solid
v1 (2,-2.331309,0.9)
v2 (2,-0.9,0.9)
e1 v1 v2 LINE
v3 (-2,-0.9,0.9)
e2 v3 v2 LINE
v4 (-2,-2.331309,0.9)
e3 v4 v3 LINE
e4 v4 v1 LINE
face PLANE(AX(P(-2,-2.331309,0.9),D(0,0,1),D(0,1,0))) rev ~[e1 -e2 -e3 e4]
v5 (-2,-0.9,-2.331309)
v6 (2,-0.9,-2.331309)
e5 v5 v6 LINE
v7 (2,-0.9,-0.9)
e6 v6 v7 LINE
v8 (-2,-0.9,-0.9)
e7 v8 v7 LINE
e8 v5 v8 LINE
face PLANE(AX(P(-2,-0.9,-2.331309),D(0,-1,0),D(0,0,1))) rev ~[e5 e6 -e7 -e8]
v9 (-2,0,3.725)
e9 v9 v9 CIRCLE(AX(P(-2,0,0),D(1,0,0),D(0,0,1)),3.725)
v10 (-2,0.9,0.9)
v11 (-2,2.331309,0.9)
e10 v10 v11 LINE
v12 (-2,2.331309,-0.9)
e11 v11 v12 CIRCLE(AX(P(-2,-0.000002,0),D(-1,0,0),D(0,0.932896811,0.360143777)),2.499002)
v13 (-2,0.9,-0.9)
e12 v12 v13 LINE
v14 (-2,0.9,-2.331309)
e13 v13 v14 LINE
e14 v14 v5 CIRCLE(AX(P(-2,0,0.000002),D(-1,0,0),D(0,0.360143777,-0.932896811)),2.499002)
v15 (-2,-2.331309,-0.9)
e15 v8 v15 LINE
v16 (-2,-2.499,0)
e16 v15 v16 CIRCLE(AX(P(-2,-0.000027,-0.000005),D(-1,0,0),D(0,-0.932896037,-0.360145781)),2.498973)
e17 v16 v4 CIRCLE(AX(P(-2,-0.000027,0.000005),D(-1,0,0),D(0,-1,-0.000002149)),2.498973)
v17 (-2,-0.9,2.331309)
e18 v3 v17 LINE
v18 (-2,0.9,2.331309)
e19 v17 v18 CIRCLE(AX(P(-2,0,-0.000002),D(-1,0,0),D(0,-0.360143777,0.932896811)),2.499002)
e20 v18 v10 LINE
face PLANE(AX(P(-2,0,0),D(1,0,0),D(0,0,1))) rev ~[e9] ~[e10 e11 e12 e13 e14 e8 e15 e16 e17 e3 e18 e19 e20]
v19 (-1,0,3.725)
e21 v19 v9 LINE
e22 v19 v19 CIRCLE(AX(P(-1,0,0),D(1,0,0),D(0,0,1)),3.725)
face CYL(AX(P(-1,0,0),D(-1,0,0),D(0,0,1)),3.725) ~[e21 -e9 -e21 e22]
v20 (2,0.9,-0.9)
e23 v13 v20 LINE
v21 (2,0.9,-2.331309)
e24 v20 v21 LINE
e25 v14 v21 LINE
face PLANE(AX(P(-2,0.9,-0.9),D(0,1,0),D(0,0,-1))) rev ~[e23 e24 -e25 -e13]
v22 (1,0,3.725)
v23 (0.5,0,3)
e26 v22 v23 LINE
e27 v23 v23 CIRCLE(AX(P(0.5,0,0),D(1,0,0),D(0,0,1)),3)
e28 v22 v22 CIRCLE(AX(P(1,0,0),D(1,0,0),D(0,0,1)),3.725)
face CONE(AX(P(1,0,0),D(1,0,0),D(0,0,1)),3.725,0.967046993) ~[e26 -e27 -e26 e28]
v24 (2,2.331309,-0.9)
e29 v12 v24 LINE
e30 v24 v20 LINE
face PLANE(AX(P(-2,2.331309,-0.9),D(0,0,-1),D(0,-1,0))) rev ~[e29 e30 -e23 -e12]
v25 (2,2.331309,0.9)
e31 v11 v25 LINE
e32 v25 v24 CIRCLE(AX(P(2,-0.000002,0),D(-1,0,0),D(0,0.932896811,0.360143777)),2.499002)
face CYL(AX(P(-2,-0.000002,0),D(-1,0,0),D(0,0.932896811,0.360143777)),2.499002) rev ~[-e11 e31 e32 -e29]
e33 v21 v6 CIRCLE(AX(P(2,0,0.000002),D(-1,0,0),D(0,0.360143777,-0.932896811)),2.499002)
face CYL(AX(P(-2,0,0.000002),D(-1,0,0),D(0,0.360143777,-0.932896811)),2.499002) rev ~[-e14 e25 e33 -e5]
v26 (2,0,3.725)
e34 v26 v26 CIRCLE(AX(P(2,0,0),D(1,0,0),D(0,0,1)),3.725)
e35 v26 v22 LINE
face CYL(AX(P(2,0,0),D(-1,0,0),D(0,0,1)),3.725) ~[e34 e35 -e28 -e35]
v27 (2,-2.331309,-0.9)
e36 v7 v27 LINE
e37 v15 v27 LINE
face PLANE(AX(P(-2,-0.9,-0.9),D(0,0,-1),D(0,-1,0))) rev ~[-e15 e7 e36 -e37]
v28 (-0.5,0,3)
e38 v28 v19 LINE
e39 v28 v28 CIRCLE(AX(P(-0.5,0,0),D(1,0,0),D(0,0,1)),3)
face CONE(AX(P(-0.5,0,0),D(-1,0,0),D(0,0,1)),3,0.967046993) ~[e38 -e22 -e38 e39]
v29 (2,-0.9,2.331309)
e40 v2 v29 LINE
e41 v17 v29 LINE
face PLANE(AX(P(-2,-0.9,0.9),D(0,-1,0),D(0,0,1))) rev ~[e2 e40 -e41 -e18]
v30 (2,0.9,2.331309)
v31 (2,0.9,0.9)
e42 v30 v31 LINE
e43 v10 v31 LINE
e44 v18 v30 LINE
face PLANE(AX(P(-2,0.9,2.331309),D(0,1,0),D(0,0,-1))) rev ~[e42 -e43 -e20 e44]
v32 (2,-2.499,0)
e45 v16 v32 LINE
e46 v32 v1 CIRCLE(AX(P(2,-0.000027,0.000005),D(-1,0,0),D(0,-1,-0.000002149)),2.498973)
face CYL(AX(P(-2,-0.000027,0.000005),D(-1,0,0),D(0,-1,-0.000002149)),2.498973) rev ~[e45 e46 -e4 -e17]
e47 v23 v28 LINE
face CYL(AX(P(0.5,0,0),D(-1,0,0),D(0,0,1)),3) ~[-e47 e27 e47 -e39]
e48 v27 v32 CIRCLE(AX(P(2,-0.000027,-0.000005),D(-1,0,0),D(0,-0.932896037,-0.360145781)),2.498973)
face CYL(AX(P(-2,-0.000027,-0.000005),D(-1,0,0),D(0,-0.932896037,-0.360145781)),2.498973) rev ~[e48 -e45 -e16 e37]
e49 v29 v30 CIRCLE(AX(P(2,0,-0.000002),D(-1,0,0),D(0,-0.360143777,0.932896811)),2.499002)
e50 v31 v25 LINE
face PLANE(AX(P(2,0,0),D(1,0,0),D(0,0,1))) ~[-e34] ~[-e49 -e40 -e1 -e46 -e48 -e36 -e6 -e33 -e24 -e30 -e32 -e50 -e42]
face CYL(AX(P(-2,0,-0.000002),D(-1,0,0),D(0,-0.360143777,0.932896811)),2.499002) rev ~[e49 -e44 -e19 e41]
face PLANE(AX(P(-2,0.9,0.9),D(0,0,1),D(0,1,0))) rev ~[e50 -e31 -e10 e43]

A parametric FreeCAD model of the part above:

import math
import FreeCAD as App
import Part
import Sketcher

doc = App.newDocument("Part")
params = doc.addObject("Spreadsheet::Sheet", "Params")
for row, (alias, value) in enumerate([
    ("sketch1_width", "1 mm"),
    ("sketch1_width2", "4 mm"),
    ("revolution_angle", "360 deg"),
], start=1):
    params.set(f"A{row}", alias)
    params.set(f"B{row}", "=" + value)
    params.setAlias(f"B{row}", alias)

body = doc.addObject("PartDesign::Body", "Body")

# Sketch on XZ plane
sketch1 = body.newObject("Sketcher::SketchObject", "Sketch")
sketch1.AttachmentSupport = (doc.getObject("XZ_Plane"), [""])
sketch1.MapMode = "FlatFace"
sketch1.addGeometry(Part.LineSegment(App.Vector(2, 0, 0), App.Vector(2, 3.725, 0)), False)
sketch1.addGeometry(Part.LineSegment(App.Vector(2, 3.725, 0), App.Vector(1, 3.725, 0)), False)
sketch1.addGeometry(Part.LineSegment(App.Vector(1, 3.725, 0), App.Vector(0.5, 3, 0)), False)
sketch1.addGeometry(Part.LineSegment(App.Vector(0.5, 3, 0), App.Vector(-0.5, 3, 0)), False)
sketch1.addGeometry(Part.LineSegment(App.Vector(-0.5, 3, 0), App.Vector(-1, 3.725, 0)), False)
sketch1.addGeometry(Part.LineSegment(App.Vector(-1, 3.725, 0), App.Vector(-2, 3.725, 0)), False)
sketch1.addGeometry(Part.LineSegment(App.Vector(-2, 3.725, 0), App.Vector(-2, 0, 0)), False)
sketch1.addGeometry(Part.LineSegment(App.Vector(-2, 0, 0), App.Vector(2, 0, 0)), False)
sketch1.addConstraint(Sketcher.Constraint("Coincident", 0, 2, 1, 1))
sketch1.addConstraint(Sketcher.Constraint("Coincident", 1, 2, 2, 1))
sketch1.addConstraint(Sketcher.Constraint("Coincident", 2, 2, 3, 1))
sketch1.addConstraint(Sketcher.Constraint("Coincident", 3, 2, 4, 1))
sketch1.addConstraint(Sketcher.Constraint("Coincident", 4, 2, 5, 1))
sketch1.addConstraint(Sketcher.Constraint("Coincident", 5, 2, 6, 1))
sketch1.addConstraint(Sketcher.Constraint("Coincident", 6, 2, 7, 1))
sketch1.addConstraint(Sketcher.Constraint("Coincident", 7, 2, 0, 1))
sketch1.addConstraint(Sketcher.Constraint("Vertical", 0))
sketch1.addConstraint(Sketcher.Constraint("Horizontal", 1))
sketch1.addConstraint(Sketcher.Constraint("Horizontal", 3))
sketch1.addConstraint(Sketcher.Constraint("Horizontal", 5))
sketch1.addConstraint(Sketcher.Constraint("Vertical", 6))
sketch1.addConstraint(Sketcher.Constraint("Horizontal", 7))
sketch1.addConstraint(Sketcher.Constraint("Symmetric", 6, 2, 7, 2, -1, 1))
sketch1.addConstraint(Sketcher.Constraint("Symmetric", 1, 2, 4, 2, -2))
sketch1.addConstraint(Sketcher.Constraint("Equal", 1, 3))
sketch1.addConstraint(Sketcher.Constraint("Equal", 2, 4))
sketch1.addConstraint(Sketcher.Constraint("DistanceX", 1, 2, 1, 1, 1.0))
sketch1.addConstraint(Sketcher.Constraint("DistanceX", 7, 1, 7, 2, 4.0))
sketch1.addConstraint(Sketcher.Constraint("DistanceY", -1, 1, 2, 2, 3.0))
sketch1.addConstraint(Sketcher.Constraint("DistanceY", 0, 1, 0, 2, 3.725))
sketch1.setExpression("Constraints[18]", "Params.sketch1_width")
sketch1.setExpression("Constraints[19]", "Params.sketch1_width2")
revolution = body.newObject("PartDesign::Revolution", "Revolution")
revolution.Profile = sketch1
revolution.ReferenceAxis = (sketch1, ["H_Axis"])
revolution.setExpression("Angle", "Params.revolution_angle")

# Sketch on YZ plane
sketch2 = body.newObject("Sketcher::SketchObject", "Sketch001")
sketch2.AttachmentSupport = (doc.getObject("YZ_Plane"), [""])
sketch2.MapMode = "FlatFace"
sketch2.AttachmentOffset = App.Placement(App.Vector(0, 0, -2), App.Rotation())
sketch2.addGeometry(Part.ArcOfCircle(Part.Circle(App.Vector(-0.000027, -0.000005, 0), App.Vector(0, 0, 1), 2.498973), math.radians(179.999877), math.radians(201.109149)), False)
sketch2.addGeometry(Part.ArcOfCircle(Part.Circle(App.Vector(-0.000027, 0.000005, 0), App.Vector(0, 0, 1), 2.498973), math.radians(158.890851), math.radians(180.000123)), False)
sketch2.addGeometry(Part.LineSegment(App.Vector(-2.331309, 0.9, 0), App.Vector(-0.9, 0.9, 0)), False)
sketch2.addGeometry(Part.LineSegment(App.Vector(-0.9, 0.9, 0), App.Vector(-0.9, 2.331309, 0)), False)
sketch2.addGeometry(Part.ArcOfCircle(Part.Circle(App.Vector(0, -0.000002, 0), App.Vector(0, 0, 1), 2.499002), math.radians(68.890974), math.radians(111.109026)), False)
sketch2.addGeometry(Part.LineSegment(App.Vector(0.9, 2.331309, 0), App.Vector(0.9, 0.9, 0)), False)
sketch2.addGeometry(Part.LineSegment(App.Vector(0.9, 0.9, 0), App.Vector(2.331309, 0.9, 0)), False)
sketch2.addGeometry(Part.ArcOfCircle(Part.Circle(App.Vector(-0.000002, 0, 0), App.Vector(0, 0, 1), 2.499002), math.radians(-21.109026), math.radians(21.109026)), False)
sketch2.addGeometry(Part.LineSegment(App.Vector(2.331309, -0.9, 0), App.Vector(0.9, -0.9, 0)), False)
sketch2.addGeometry(Part.LineSegment(App.Vector(0.9, -0.9, 0), App.Vector(0.9, -2.331309, 0)), False)
sketch2.addGeometry(Part.ArcOfCircle(Part.Circle(App.Vector(0, 0.000002, 0), App.Vector(0, 0, 1), 2.499002), math.radians(-111.109026), math.radians(-68.890974)), False)
sketch2.addGeometry(Part.LineSegment(App.Vector(-0.9, -2.331309, 0), App.Vector(-0.9, -0.9, 0)), False)
sketch2.addGeometry(Part.LineSegment(App.Vector(-0.9, -0.9, 0), App.Vector(-2.331309, -0.9, 0)), False)
sketch2.addConstraint(Sketcher.Constraint("Coincident", 0, 1, 1, 2))
sketch2.addConstraint(Sketcher.Constraint("Coincident", 1, 1, 2, 1))
sketch2.addConstraint(Sketcher.Constraint("Coincident", 2, 2, 3, 1))
sketch2.addConstraint(Sketcher.Constraint("Coincident", 3, 2, 4, 2))
sketch2.addConstraint(Sketcher.Constraint("Coincident", 4, 1, 5, 1))
sketch2.addConstraint(Sketcher.Constraint("Coincident", 5, 2, 6, 1))
sketch2.addConstraint(Sketcher.Constraint("Coincident", 6, 2, 7, 2))
sketch2.addConstraint(Sketcher.Constraint("Coincident", 7, 1, 8, 1))
sketch2.addConstraint(Sketcher.Constraint("Coincident", 8, 2, 9, 1))
sketch2.addConstraint(Sketcher.Constraint("Coincident", 9, 2, 10, 2))
sketch2.addConstraint(Sketcher.Constraint("Coincident", 10, 1, 11, 1))
sketch2.addConstraint(Sketcher.Constraint("Coincident", 11, 2, 12, 1))
sketch2.addConstraint(Sketcher.Constraint("Coincident", 12, 2, 0, 2))
sketch2.addConstraint(Sketcher.Constraint("Horizontal", 2))
sketch2.addConstraint(Sketcher.Constraint("Vertical", 3))
sketch2.addConstraint(Sketcher.Constraint("Vertical", 5))
sketch2.addConstraint(Sketcher.Constraint("Horizontal", 6))
sketch2.addConstraint(Sketcher.Constraint("Horizontal", 8))
sketch2.addConstraint(Sketcher.Constraint("Vertical", 9))
sketch2.addConstraint(Sketcher.Constraint("Vertical", 11))
sketch2.addConstraint(Sketcher.Constraint("Horizontal", 12))
sketch2.addConstraint(Sketcher.Constraint("Coincident", 4, 3, -1, 1))
sketch2.addConstraint(Sketcher.Constraint("Coincident", 7, 3, -1, 1))
sketch2.addConstraint(Sketcher.Constraint("Coincident", 10, 3, -1, 1))
sketch2.addConstraint(Sketcher.Constraint("Equal", 0, 1))
sketch2.addConstraint(Sketcher.Constraint("Equal", 4, 7))
sketch2.addConstraint(Sketcher.Constraint("Equal", 7, 10))
sketch2.addConstraint(Sketcher.Constraint("Symmetric", 1, 1, 7, 1, -1, 1))
sketch2.addConstraint(Sketcher.Constraint("Symmetric", 5, 2, 11, 2, -1, 1))
sketch2.addConstraint(Sketcher.Constraint("Symmetric", 2, 2, 5, 2, -2))
sketch2.addConstraint(Sketcher.Constraint("PointOnObject", 0, 1, -1))
sketch2.addConstraint(Sketcher.Constraint("Horizontal", 9, 2, 10, 1))
sketch2.addConstraint(Sketcher.Constraint("Vertical", 1, 1, 12, 2))
sketch2.addConstraint(Sketcher.Constraint("Equal", 12, 3))
sketch2.addConstraint(Sketcher.Constraint("Radius", 4, 2.499002))
sketch2.addConstraint(Sketcher.Constraint("DistanceY", -1, 1, 1, 1, 0.9))
sketch2.addConstraint(Sketcher.Constraint("DistanceX", 0, 1, -1, 1, 2.499))
sketch2.addConstraint(Sketcher.Constraint("Radius", 0, 2.498973))
pocket1 = body.newObject("PartDesign::Pocket", "Pocket")
pocket1.Profile = sketch2
pocket1.Type = "ThroughAll"
pocket1.Reversed = True

doc.recompute()
